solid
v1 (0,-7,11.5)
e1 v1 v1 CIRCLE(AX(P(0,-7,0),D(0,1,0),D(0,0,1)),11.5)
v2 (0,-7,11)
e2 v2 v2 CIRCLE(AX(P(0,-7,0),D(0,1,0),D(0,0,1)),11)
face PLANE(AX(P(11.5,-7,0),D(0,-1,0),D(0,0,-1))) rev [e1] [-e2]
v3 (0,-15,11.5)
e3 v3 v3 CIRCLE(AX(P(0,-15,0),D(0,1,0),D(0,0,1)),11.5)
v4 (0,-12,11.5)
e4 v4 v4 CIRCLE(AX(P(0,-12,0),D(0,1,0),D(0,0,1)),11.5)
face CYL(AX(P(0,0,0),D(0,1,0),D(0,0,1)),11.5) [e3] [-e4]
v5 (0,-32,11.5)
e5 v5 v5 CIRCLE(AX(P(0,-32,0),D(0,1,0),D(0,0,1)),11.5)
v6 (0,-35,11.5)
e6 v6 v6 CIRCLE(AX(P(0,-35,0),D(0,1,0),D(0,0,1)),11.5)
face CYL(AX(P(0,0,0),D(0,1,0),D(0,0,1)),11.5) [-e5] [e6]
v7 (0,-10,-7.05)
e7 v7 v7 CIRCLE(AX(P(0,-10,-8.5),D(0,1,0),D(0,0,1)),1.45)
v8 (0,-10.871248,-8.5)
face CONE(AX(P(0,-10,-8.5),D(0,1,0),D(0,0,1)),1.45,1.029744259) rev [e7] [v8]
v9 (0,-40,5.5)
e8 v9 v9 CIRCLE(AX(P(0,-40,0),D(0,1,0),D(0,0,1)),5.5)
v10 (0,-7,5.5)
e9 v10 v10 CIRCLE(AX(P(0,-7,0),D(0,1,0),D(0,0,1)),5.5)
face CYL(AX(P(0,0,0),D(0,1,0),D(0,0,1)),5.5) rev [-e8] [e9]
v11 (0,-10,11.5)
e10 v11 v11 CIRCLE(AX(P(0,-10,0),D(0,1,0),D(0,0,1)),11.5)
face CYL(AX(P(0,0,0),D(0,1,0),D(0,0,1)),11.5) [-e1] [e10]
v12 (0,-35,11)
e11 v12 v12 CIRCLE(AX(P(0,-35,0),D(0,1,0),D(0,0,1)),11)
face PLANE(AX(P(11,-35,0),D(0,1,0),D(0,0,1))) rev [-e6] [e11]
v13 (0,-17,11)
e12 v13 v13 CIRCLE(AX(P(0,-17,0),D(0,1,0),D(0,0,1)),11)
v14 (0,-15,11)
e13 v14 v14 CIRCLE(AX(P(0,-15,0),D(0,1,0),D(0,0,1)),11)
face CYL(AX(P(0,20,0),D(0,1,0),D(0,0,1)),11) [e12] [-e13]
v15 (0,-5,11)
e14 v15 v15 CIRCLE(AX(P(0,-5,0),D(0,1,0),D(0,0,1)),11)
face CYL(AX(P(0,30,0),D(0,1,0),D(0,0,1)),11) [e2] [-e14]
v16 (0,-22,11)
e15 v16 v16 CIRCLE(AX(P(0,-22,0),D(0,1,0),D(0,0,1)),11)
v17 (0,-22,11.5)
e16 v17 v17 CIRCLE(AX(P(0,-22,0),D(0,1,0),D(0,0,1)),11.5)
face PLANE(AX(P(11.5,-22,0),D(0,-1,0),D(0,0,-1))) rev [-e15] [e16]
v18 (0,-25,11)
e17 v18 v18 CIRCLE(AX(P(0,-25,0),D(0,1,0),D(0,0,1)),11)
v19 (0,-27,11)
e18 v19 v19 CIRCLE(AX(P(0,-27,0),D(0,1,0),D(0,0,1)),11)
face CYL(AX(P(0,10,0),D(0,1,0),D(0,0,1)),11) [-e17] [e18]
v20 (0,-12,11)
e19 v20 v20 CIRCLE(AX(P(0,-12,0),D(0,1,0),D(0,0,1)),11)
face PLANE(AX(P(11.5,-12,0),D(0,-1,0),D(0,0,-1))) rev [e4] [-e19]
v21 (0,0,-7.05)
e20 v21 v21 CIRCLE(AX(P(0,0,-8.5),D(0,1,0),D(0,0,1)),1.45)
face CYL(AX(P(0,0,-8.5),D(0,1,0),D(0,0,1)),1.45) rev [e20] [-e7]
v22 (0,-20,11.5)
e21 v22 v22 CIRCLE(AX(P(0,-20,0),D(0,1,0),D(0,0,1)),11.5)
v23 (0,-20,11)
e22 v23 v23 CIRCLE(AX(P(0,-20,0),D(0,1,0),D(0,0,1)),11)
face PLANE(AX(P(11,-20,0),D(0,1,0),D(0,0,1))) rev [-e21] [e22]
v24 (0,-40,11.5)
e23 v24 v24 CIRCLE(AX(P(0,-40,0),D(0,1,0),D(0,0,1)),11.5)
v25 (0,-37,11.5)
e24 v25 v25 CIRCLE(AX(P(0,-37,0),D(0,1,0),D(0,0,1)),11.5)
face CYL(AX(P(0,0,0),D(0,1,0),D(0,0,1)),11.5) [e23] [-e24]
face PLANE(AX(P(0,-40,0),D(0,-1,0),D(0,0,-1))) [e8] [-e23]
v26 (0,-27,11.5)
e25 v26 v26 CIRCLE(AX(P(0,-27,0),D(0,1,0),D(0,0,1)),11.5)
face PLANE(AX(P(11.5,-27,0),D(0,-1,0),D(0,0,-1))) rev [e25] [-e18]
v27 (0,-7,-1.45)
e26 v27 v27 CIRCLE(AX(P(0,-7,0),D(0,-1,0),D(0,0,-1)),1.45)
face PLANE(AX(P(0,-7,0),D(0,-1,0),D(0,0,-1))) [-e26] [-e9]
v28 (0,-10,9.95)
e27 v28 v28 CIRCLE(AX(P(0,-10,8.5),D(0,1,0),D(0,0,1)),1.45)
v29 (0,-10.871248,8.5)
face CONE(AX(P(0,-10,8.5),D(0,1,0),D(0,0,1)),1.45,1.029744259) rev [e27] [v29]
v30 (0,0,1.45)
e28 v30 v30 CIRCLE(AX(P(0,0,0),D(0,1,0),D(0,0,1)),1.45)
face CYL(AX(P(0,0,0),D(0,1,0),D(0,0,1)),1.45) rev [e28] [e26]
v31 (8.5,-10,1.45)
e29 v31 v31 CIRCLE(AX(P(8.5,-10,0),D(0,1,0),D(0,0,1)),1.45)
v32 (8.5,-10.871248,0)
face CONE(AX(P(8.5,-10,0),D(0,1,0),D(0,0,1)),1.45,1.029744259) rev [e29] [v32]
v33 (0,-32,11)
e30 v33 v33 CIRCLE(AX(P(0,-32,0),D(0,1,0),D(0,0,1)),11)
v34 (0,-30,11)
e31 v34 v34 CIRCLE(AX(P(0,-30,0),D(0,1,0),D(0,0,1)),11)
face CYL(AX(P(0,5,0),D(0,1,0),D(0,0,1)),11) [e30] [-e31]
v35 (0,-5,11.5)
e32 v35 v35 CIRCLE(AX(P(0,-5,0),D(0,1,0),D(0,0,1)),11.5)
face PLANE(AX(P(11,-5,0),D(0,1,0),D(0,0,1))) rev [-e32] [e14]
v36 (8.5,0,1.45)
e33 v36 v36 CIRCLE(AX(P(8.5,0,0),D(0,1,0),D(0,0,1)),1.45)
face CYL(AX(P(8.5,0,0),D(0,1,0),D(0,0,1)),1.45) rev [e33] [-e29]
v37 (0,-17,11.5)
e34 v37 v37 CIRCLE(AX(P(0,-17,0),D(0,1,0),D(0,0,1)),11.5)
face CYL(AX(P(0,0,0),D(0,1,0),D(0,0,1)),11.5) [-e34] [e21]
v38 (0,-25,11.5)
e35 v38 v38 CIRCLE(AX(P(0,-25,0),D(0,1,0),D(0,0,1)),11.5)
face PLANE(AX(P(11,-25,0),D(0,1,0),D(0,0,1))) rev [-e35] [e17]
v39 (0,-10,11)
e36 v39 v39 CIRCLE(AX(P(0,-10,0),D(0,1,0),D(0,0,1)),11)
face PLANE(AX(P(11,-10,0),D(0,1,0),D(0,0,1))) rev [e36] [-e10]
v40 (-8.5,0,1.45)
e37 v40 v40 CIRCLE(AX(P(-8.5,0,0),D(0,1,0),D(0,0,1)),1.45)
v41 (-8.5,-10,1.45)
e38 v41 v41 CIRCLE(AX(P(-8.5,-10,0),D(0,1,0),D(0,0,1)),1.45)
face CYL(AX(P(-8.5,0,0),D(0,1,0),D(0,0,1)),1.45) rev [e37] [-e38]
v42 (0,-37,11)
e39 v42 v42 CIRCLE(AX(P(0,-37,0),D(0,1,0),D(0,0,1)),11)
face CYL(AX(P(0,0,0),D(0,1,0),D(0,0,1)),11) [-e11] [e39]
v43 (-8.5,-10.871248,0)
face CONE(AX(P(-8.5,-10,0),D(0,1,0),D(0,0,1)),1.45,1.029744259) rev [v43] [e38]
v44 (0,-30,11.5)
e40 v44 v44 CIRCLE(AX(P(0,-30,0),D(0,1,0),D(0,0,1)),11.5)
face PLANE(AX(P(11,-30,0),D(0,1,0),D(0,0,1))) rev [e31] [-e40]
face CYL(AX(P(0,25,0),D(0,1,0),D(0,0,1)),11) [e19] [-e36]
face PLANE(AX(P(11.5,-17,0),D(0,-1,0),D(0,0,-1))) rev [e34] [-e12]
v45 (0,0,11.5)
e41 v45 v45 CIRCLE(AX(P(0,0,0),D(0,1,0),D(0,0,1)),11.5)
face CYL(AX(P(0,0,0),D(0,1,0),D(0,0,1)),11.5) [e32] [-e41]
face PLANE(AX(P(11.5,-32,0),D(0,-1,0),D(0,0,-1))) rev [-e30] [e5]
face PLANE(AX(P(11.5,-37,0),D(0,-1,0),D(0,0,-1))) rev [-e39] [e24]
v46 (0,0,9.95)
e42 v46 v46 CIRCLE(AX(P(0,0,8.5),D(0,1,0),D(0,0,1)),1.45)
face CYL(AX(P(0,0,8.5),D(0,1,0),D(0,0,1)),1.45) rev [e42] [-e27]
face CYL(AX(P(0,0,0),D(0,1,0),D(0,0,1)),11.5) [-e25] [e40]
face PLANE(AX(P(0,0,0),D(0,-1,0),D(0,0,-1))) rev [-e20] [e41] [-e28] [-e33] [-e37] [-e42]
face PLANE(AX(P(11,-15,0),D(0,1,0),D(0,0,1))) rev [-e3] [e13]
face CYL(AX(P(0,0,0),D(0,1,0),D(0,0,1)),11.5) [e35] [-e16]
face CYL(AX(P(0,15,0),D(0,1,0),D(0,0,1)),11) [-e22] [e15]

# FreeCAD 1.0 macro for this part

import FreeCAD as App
import Part
import Sketcher
Q = App.Units.Quantity


def add_polygon(sketch, points):
    """Adds a closed chain of lines whose ends are joined by coincident constraints."""
    first, n = sketch.GeometryCount, len(points)
    for a, b in zip(points, points[1:] + points[:1]):
        sketch.addGeometry(Part.LineSegment(App.Vector(*a, 0), App.Vector(*b, 0)), False)
    for i in range(n):
        sketch.addConstraint(Sketcher.Constraint("Coincident", first + i, 2, first + (i + 1) % n, 1))

doc = App.newDocument("Part")
params = doc.addObject("Spreadsheet::Sheet", "Params")
for row, (alias, value) in enumerate([
    ("sketch1_width", "6 mm"),
    ("sketch1_height", "40 mm"),
    ("sketch1_height2", "33 mm"),
    ("sketch1_width2", "11.5 mm"),
    ("revolution_angle", "360 deg"),
    ("sketch2_height", "2 mm"),
    ("sketch2_width", "0.5 mm"),
    ("groove_angle", "360 deg"),
    ("linearpattern_pitch", "5 mm"),
    ("sketch3_diameter", "2.9 mm"),
    ("hole_diameter", "2.9 mm"),
    ("hole_depth", "10 mm"),
], start=1):
    params.set(f"A{row}", alias)
    params.set(f"B{row}", "=" + value)
    params.setAlias(f"B{row}", alias)

body = doc.addObject("PartDesign::Body", "Body")

# Sketch on XY plane
sketch1 = doc.addObject("Sketcher::SketchObject", "Sketch")
body.addObject(sketch1)
sketch1.AttachmentSupport = (doc.XY_Plane, [""])
sketch1.MapMode = "FlatFace"
add_polygon(sketch1, [(0, 0), (-12, 0), (-12, -40), (-6, -40), (-6, -7), (0, -7)])  # lines 0-5
sketch1.addConstraint(Sketcher.Constraint("Horizontal", 0))
sketch1.addConstraint(Sketcher.Constraint("Vertical", 1))
sketch1.addConstraint(Sketcher.Constraint("Horizontal", 2))
sketch1.addConstraint(Sketcher.Constraint("Vertical", 3))
sketch1.addConstraint(Sketcher.Constraint("Horizontal", 4))
sketch1.addConstraint(Sketcher.Constraint("Vertical", 5))
sketch1.addConstraint(Sketcher.Constraint("Coincident", 5, 2, -1, 1))
sketch1.addConstraint(Sketcher.Constraint("DistanceX", 2, 1, 2, 2, Q("6 mm")))
sketch1.addConstraint(Sketcher.Constraint("DistanceY", 1, 2, 1, 1, Q("40 mm")))
sketch1.addConstraint(Sketcher.Constraint("DistanceY", 3, 1, 3, 2, Q("33 mm")))
sketch1.addConstraint(Sketcher.Constraint("DistanceX", 0, 2, 0, 1, Q("11.5 mm")))
sketch1.setExpression("Constraints[13]", "Params.sketch1_width")
sketch1.setExpression("Constraints[14]", "Params.sketch1_height")
sketch1.setExpression("Constraints[15]", "Params.sketch1_height2")
sketch1.setExpression("Constraints[16]", "Params.sketch1_width2")
revolution = doc.addObject("PartDesign::Revolution", "Revolution")
body.addObject(revolution)
revolution.Profile = sketch1
revolution.ReferenceAxis = (sketch1, ["V_Axis"])
revolution.setExpression("Angle", "Params.revolution_angle")

# Sketch on XY plane
sketch2 = doc.addObject("Sketcher::SketchObject", "Sketch001")
body.addObject(sketch2)
sketch2.AttachmentSupport = (doc.XY_Plane, [""])
sketch2.MapMode = "FlatFace"
add_polygon(sketch2, [(11, -35), (11, -37), (11.5, -37), (11.5, -35)])  # lines 0-3
sketch2.addConstraint(Sketcher.Constraint("Vertical", 0))
sketch2.addConstraint(Sketcher.Constraint("Horizontal", 1))
sketch2.addConstraint(Sketcher.Constraint("Vertical", 2))
sketch2.addConstraint(Sketcher.Constraint("Horizontal", 3))
sketch2.addConstraint(Sketcher.Constraint("DistanceY", 0, 2, 0, 1, Q("2 mm")))
sketch2.addConstraint(Sketcher.Constraint("DistanceX", 1, 1, 1, 2, Q("0.5 mm")))
sketch2.addConstraint(Sketcher.Constraint("DistanceX", -1, 1, 0, 2, Q("11 mm")))
sketch2.addConstraint(Sketcher.Constraint("DistanceY", 0, 2, -1, 1, Q("37 mm")))
sketch2.setExpression("Constraints[8]", "Params.sketch2_height")
sketch2.setExpression("Constraints[9]", "Params.sketch2_width")
groove = doc.addObject("PartDesign::Groove", "Groove")
body.addObject(groove)
groove.Profile = sketch2
groove.ReferenceAxis = (sketch2, ["V_Axis"])
groove.setExpression("Angle", "Params.groove_angle")
doc.recompute()

linearpattern = doc.addObject("PartDesign::LinearPattern", "LinearPattern")
body.addObject(linearpattern)
linearpattern.Originals = [groove]
linearpattern.Direction = (doc.Y_Axis, [""])
linearpattern.Mode = "offset"
linearpattern.setExpression("Offset", "Params.linearpattern_pitch")
linearpattern.Occurrences = 7
body.Tip = linearpattern

# Sketch on XZ plane
sketch3 = doc.addObject("Sketcher::SketchObject", "Sketch002")
body.addObject(sketch3)
sketch3.AttachmentSupport = (doc.XZ_Plane, [""])
sketch3.MapMode = "FlatFace"
sketch3.addGeometry(Part.Circle(App.Vector(8.5, 0, 0), App.Vector(0, 0, 1), 1.4), False)
sketch3.addGeometry(Part.Circle(App.Vector(0, 0, 0), App.Vector(0, 0, 1), 1.4), False)
sketch3.addGeometry(Part.Circle(App.Vector(-8.5, 0, 0), App.Vector(0, 0, 1), 1.4), False)
sketch3.addGeometry(Part.Circle(App.Vector(0, -8.5, 0), App.Vector(0, 0, 1), 1.4), False)
sketch3.addGeometry(Part.Circle(App.Vector(0, 8.5, 0), App.Vector(0, 0, 1), 1.4), False)
sketch3.addConstraint(Sketcher.Constraint("Coincident", 1, 3, -1, 1))
sketch3.addConstraint(Sketcher.Constraint("Equal", 0, 1))
sketch3.addConstraint(Sketcher.Constraint("Equal", 1, 2))
sketch3.addConstraint(Sketcher.Constraint("Equal", 2, 3))
sketch3.addConstraint(Sketcher.Constraint("Equal", 3, 4))
sketch3.addConstraint(Sketcher.Constraint("Symmetric", 0, 3, 2, 3, -1, 1))
sketch3.addConstraint(Sketcher.Constraint("Symmetric", 3, 3, 4, 3, -1, 1))
sketch3.addConstraint(Sketcher.Constraint("PointOnObject", 0, 3, -1))
sketch3.addConstraint(Sketcher.Constraint("PointOnObject", 3, 3, -2))
sketch3.addConstraint(Sketcher.Constraint("Diameter", 0, Q("2.9 mm")))
sketch3.addConstraint(Sketcher.Constraint("DistanceX", 2, 3, 0, 3, Q("17 mm")))
sketch3.addConstraint(Sketcher.Constraint("DistanceY", 3, 3, 4, 3, Q("17 mm")))
sketch3.setExpression("Constraints[9]", "Params.sketch3_diameter")
doc.recompute()
hole = doc.addObject("PartDesign::Hole", "Hole")
body.addObject(hole)
hole.Profile = sketch3
hole.ThreadType = "None"
hole.setExpression("Diameter", "Params.hole_diameter")
hole.DepthType = "Dimension"
hole.setExpression("Depth", "Params.hole_depth")
hole.DrillPoint = "Angled"
hole.DrillPointAngle = 118
hole.Reversed = True

doc.recompute()
